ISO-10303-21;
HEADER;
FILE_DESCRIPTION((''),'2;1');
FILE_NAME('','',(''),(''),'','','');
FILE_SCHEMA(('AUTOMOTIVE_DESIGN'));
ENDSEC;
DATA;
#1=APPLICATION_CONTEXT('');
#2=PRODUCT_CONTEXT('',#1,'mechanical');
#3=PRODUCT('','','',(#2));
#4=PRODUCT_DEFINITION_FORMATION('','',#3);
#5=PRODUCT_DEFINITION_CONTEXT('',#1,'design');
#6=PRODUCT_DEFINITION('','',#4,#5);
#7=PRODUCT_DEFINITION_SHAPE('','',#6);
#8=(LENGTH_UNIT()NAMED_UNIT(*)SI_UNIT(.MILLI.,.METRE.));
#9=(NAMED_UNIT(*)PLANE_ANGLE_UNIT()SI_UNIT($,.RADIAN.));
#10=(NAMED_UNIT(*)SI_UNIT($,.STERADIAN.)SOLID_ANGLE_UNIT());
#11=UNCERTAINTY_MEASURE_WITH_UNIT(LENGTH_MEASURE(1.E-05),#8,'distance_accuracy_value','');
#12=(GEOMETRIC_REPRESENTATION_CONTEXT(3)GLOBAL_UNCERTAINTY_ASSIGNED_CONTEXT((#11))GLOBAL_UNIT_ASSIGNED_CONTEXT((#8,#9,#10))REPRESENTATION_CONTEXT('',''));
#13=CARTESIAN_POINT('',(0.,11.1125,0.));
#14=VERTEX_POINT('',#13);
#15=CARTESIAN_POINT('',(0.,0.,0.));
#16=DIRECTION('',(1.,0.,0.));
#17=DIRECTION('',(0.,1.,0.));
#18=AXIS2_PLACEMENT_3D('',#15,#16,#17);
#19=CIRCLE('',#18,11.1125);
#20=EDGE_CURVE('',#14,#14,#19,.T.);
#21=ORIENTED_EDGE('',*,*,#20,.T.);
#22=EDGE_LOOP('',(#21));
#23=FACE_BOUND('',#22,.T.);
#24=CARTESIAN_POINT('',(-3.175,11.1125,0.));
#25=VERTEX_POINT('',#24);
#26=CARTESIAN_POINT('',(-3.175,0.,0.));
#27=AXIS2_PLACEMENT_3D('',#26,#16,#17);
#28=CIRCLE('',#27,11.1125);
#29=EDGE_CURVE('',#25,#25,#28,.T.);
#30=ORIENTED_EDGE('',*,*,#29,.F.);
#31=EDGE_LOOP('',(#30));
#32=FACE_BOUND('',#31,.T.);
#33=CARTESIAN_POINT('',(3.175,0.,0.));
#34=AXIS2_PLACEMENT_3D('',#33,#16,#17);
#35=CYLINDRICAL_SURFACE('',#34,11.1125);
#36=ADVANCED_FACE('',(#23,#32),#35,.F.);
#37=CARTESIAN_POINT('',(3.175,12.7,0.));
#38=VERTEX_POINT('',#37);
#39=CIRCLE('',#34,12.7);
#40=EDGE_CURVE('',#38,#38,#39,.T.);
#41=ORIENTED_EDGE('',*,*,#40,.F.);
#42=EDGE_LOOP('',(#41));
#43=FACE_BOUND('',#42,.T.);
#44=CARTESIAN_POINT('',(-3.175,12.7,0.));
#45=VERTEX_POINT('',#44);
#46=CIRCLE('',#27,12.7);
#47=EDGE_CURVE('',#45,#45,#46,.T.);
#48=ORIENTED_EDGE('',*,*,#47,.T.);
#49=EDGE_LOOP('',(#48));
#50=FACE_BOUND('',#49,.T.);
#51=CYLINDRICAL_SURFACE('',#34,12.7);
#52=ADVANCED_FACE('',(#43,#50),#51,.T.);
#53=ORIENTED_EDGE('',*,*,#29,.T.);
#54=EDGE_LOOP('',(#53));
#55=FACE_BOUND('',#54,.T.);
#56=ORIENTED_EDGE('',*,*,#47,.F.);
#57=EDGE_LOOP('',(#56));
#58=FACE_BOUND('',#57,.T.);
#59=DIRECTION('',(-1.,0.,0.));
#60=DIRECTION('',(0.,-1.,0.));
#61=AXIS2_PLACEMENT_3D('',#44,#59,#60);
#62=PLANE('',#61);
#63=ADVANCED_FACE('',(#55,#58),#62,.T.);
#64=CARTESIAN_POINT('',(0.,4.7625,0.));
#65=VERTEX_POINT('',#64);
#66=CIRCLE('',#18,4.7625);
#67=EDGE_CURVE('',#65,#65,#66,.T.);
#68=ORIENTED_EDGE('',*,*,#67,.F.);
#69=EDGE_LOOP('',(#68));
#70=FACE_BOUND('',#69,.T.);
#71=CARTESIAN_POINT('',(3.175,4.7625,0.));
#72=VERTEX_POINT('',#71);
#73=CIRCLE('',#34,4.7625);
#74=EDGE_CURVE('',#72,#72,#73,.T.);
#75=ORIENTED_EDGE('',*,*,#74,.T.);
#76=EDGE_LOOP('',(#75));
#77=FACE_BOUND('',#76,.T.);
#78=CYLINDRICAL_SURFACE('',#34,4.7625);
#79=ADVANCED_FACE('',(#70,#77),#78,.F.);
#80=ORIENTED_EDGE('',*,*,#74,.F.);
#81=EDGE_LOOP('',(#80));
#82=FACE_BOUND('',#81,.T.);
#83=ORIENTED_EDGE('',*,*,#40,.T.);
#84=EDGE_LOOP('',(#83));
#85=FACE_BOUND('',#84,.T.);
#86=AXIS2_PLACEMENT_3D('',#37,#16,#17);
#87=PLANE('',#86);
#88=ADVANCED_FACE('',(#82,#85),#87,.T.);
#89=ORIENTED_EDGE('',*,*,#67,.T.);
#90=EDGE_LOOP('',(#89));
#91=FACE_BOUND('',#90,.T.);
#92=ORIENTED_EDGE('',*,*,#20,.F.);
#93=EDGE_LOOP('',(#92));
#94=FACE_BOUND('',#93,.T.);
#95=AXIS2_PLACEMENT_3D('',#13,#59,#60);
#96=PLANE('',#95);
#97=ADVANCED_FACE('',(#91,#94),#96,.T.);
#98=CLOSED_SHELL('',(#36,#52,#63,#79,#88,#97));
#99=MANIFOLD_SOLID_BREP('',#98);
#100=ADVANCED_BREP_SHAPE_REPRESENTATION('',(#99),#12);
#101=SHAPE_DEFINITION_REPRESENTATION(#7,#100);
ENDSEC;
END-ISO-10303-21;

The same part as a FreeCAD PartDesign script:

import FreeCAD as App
import Part
import Sketcher

V = App.Vector
Q = App.Units.Quantity


def add_polygon(sketch, points):
    """Adds a closed chain of lines whose ends are joined by coincident constraints."""
    first, n = sketch.GeometryCount, len(points)
    for a, b in zip(points, points[1:] + points[:1]):
        sketch.addGeometry(Part.LineSegment(App.Vector(*a, 0), App.Vector(*b, 0)), False)
    for i in range(n):
        sketch.addConstraint(Sketcher.Constraint("Coincident", first + i, 2, first + (i + 1) % n, 1))

doc = App.newDocument("Part")
body = doc.addObject("PartDesign::Body", "Body")

sketch1 = body.newObject("Sketcher::SketchObject", "Sketch")
sketch1.AttachmentSupport = (doc.getObject("XY_Plane"), [""])
sketch1.MapMode = "FlatFace"
add_polygon(sketch1, [(3.2, 12.7), (-3.2, 12.7), (-3.2, 11.1), (0, 11.1), (0, 4.8), (3.2, 4.8)])
sketch1.addConstraint(Sketcher.Constraint("Horizontal", 0))
sketch1.addConstraint(Sketcher.Constraint("Vertical", 1))
sketch1.addConstraint(Sketcher.Constraint("Horizontal", 2))
sketch1.addConstraint(Sketcher.Constraint("Vertical", 3))
sketch1.addConstraint(Sketcher.Constraint("Horizontal", 4))
sketch1.addConstraint(Sketcher.Constraint("Vertical", 5))
sketch1.addConstraint(Sketcher.Constraint("PointOnObject", 2, 2, -2))
sketch1.addConstraint(Sketcher.Constraint("Equal", 2, 4))
sketch1.addConstraint(Sketcher.Constraint("Equal", 0, 3))
sketch1.addConstraint(Sketcher.Constraint("DistanceX", 0, 2, 0, 1, Q("0.25 in")))
sketch1.addConstraint(Sketcher.Constraint("DistanceY", -1, 1, 0, 2, Q("0.5 in")))
sketch1.addConstraint(Sketcher.Constraint("DistanceY", 1, 2, 1, 1, Q("0.0625 in")))
revolution = body.newObject("PartDesign::Revolution", "Revolution")
revolution.Profile = sketch1
revolution.ReferenceAxis = (sketch1, ["H_Axis"])
revolution.Angle = 360

doc.recompute()
